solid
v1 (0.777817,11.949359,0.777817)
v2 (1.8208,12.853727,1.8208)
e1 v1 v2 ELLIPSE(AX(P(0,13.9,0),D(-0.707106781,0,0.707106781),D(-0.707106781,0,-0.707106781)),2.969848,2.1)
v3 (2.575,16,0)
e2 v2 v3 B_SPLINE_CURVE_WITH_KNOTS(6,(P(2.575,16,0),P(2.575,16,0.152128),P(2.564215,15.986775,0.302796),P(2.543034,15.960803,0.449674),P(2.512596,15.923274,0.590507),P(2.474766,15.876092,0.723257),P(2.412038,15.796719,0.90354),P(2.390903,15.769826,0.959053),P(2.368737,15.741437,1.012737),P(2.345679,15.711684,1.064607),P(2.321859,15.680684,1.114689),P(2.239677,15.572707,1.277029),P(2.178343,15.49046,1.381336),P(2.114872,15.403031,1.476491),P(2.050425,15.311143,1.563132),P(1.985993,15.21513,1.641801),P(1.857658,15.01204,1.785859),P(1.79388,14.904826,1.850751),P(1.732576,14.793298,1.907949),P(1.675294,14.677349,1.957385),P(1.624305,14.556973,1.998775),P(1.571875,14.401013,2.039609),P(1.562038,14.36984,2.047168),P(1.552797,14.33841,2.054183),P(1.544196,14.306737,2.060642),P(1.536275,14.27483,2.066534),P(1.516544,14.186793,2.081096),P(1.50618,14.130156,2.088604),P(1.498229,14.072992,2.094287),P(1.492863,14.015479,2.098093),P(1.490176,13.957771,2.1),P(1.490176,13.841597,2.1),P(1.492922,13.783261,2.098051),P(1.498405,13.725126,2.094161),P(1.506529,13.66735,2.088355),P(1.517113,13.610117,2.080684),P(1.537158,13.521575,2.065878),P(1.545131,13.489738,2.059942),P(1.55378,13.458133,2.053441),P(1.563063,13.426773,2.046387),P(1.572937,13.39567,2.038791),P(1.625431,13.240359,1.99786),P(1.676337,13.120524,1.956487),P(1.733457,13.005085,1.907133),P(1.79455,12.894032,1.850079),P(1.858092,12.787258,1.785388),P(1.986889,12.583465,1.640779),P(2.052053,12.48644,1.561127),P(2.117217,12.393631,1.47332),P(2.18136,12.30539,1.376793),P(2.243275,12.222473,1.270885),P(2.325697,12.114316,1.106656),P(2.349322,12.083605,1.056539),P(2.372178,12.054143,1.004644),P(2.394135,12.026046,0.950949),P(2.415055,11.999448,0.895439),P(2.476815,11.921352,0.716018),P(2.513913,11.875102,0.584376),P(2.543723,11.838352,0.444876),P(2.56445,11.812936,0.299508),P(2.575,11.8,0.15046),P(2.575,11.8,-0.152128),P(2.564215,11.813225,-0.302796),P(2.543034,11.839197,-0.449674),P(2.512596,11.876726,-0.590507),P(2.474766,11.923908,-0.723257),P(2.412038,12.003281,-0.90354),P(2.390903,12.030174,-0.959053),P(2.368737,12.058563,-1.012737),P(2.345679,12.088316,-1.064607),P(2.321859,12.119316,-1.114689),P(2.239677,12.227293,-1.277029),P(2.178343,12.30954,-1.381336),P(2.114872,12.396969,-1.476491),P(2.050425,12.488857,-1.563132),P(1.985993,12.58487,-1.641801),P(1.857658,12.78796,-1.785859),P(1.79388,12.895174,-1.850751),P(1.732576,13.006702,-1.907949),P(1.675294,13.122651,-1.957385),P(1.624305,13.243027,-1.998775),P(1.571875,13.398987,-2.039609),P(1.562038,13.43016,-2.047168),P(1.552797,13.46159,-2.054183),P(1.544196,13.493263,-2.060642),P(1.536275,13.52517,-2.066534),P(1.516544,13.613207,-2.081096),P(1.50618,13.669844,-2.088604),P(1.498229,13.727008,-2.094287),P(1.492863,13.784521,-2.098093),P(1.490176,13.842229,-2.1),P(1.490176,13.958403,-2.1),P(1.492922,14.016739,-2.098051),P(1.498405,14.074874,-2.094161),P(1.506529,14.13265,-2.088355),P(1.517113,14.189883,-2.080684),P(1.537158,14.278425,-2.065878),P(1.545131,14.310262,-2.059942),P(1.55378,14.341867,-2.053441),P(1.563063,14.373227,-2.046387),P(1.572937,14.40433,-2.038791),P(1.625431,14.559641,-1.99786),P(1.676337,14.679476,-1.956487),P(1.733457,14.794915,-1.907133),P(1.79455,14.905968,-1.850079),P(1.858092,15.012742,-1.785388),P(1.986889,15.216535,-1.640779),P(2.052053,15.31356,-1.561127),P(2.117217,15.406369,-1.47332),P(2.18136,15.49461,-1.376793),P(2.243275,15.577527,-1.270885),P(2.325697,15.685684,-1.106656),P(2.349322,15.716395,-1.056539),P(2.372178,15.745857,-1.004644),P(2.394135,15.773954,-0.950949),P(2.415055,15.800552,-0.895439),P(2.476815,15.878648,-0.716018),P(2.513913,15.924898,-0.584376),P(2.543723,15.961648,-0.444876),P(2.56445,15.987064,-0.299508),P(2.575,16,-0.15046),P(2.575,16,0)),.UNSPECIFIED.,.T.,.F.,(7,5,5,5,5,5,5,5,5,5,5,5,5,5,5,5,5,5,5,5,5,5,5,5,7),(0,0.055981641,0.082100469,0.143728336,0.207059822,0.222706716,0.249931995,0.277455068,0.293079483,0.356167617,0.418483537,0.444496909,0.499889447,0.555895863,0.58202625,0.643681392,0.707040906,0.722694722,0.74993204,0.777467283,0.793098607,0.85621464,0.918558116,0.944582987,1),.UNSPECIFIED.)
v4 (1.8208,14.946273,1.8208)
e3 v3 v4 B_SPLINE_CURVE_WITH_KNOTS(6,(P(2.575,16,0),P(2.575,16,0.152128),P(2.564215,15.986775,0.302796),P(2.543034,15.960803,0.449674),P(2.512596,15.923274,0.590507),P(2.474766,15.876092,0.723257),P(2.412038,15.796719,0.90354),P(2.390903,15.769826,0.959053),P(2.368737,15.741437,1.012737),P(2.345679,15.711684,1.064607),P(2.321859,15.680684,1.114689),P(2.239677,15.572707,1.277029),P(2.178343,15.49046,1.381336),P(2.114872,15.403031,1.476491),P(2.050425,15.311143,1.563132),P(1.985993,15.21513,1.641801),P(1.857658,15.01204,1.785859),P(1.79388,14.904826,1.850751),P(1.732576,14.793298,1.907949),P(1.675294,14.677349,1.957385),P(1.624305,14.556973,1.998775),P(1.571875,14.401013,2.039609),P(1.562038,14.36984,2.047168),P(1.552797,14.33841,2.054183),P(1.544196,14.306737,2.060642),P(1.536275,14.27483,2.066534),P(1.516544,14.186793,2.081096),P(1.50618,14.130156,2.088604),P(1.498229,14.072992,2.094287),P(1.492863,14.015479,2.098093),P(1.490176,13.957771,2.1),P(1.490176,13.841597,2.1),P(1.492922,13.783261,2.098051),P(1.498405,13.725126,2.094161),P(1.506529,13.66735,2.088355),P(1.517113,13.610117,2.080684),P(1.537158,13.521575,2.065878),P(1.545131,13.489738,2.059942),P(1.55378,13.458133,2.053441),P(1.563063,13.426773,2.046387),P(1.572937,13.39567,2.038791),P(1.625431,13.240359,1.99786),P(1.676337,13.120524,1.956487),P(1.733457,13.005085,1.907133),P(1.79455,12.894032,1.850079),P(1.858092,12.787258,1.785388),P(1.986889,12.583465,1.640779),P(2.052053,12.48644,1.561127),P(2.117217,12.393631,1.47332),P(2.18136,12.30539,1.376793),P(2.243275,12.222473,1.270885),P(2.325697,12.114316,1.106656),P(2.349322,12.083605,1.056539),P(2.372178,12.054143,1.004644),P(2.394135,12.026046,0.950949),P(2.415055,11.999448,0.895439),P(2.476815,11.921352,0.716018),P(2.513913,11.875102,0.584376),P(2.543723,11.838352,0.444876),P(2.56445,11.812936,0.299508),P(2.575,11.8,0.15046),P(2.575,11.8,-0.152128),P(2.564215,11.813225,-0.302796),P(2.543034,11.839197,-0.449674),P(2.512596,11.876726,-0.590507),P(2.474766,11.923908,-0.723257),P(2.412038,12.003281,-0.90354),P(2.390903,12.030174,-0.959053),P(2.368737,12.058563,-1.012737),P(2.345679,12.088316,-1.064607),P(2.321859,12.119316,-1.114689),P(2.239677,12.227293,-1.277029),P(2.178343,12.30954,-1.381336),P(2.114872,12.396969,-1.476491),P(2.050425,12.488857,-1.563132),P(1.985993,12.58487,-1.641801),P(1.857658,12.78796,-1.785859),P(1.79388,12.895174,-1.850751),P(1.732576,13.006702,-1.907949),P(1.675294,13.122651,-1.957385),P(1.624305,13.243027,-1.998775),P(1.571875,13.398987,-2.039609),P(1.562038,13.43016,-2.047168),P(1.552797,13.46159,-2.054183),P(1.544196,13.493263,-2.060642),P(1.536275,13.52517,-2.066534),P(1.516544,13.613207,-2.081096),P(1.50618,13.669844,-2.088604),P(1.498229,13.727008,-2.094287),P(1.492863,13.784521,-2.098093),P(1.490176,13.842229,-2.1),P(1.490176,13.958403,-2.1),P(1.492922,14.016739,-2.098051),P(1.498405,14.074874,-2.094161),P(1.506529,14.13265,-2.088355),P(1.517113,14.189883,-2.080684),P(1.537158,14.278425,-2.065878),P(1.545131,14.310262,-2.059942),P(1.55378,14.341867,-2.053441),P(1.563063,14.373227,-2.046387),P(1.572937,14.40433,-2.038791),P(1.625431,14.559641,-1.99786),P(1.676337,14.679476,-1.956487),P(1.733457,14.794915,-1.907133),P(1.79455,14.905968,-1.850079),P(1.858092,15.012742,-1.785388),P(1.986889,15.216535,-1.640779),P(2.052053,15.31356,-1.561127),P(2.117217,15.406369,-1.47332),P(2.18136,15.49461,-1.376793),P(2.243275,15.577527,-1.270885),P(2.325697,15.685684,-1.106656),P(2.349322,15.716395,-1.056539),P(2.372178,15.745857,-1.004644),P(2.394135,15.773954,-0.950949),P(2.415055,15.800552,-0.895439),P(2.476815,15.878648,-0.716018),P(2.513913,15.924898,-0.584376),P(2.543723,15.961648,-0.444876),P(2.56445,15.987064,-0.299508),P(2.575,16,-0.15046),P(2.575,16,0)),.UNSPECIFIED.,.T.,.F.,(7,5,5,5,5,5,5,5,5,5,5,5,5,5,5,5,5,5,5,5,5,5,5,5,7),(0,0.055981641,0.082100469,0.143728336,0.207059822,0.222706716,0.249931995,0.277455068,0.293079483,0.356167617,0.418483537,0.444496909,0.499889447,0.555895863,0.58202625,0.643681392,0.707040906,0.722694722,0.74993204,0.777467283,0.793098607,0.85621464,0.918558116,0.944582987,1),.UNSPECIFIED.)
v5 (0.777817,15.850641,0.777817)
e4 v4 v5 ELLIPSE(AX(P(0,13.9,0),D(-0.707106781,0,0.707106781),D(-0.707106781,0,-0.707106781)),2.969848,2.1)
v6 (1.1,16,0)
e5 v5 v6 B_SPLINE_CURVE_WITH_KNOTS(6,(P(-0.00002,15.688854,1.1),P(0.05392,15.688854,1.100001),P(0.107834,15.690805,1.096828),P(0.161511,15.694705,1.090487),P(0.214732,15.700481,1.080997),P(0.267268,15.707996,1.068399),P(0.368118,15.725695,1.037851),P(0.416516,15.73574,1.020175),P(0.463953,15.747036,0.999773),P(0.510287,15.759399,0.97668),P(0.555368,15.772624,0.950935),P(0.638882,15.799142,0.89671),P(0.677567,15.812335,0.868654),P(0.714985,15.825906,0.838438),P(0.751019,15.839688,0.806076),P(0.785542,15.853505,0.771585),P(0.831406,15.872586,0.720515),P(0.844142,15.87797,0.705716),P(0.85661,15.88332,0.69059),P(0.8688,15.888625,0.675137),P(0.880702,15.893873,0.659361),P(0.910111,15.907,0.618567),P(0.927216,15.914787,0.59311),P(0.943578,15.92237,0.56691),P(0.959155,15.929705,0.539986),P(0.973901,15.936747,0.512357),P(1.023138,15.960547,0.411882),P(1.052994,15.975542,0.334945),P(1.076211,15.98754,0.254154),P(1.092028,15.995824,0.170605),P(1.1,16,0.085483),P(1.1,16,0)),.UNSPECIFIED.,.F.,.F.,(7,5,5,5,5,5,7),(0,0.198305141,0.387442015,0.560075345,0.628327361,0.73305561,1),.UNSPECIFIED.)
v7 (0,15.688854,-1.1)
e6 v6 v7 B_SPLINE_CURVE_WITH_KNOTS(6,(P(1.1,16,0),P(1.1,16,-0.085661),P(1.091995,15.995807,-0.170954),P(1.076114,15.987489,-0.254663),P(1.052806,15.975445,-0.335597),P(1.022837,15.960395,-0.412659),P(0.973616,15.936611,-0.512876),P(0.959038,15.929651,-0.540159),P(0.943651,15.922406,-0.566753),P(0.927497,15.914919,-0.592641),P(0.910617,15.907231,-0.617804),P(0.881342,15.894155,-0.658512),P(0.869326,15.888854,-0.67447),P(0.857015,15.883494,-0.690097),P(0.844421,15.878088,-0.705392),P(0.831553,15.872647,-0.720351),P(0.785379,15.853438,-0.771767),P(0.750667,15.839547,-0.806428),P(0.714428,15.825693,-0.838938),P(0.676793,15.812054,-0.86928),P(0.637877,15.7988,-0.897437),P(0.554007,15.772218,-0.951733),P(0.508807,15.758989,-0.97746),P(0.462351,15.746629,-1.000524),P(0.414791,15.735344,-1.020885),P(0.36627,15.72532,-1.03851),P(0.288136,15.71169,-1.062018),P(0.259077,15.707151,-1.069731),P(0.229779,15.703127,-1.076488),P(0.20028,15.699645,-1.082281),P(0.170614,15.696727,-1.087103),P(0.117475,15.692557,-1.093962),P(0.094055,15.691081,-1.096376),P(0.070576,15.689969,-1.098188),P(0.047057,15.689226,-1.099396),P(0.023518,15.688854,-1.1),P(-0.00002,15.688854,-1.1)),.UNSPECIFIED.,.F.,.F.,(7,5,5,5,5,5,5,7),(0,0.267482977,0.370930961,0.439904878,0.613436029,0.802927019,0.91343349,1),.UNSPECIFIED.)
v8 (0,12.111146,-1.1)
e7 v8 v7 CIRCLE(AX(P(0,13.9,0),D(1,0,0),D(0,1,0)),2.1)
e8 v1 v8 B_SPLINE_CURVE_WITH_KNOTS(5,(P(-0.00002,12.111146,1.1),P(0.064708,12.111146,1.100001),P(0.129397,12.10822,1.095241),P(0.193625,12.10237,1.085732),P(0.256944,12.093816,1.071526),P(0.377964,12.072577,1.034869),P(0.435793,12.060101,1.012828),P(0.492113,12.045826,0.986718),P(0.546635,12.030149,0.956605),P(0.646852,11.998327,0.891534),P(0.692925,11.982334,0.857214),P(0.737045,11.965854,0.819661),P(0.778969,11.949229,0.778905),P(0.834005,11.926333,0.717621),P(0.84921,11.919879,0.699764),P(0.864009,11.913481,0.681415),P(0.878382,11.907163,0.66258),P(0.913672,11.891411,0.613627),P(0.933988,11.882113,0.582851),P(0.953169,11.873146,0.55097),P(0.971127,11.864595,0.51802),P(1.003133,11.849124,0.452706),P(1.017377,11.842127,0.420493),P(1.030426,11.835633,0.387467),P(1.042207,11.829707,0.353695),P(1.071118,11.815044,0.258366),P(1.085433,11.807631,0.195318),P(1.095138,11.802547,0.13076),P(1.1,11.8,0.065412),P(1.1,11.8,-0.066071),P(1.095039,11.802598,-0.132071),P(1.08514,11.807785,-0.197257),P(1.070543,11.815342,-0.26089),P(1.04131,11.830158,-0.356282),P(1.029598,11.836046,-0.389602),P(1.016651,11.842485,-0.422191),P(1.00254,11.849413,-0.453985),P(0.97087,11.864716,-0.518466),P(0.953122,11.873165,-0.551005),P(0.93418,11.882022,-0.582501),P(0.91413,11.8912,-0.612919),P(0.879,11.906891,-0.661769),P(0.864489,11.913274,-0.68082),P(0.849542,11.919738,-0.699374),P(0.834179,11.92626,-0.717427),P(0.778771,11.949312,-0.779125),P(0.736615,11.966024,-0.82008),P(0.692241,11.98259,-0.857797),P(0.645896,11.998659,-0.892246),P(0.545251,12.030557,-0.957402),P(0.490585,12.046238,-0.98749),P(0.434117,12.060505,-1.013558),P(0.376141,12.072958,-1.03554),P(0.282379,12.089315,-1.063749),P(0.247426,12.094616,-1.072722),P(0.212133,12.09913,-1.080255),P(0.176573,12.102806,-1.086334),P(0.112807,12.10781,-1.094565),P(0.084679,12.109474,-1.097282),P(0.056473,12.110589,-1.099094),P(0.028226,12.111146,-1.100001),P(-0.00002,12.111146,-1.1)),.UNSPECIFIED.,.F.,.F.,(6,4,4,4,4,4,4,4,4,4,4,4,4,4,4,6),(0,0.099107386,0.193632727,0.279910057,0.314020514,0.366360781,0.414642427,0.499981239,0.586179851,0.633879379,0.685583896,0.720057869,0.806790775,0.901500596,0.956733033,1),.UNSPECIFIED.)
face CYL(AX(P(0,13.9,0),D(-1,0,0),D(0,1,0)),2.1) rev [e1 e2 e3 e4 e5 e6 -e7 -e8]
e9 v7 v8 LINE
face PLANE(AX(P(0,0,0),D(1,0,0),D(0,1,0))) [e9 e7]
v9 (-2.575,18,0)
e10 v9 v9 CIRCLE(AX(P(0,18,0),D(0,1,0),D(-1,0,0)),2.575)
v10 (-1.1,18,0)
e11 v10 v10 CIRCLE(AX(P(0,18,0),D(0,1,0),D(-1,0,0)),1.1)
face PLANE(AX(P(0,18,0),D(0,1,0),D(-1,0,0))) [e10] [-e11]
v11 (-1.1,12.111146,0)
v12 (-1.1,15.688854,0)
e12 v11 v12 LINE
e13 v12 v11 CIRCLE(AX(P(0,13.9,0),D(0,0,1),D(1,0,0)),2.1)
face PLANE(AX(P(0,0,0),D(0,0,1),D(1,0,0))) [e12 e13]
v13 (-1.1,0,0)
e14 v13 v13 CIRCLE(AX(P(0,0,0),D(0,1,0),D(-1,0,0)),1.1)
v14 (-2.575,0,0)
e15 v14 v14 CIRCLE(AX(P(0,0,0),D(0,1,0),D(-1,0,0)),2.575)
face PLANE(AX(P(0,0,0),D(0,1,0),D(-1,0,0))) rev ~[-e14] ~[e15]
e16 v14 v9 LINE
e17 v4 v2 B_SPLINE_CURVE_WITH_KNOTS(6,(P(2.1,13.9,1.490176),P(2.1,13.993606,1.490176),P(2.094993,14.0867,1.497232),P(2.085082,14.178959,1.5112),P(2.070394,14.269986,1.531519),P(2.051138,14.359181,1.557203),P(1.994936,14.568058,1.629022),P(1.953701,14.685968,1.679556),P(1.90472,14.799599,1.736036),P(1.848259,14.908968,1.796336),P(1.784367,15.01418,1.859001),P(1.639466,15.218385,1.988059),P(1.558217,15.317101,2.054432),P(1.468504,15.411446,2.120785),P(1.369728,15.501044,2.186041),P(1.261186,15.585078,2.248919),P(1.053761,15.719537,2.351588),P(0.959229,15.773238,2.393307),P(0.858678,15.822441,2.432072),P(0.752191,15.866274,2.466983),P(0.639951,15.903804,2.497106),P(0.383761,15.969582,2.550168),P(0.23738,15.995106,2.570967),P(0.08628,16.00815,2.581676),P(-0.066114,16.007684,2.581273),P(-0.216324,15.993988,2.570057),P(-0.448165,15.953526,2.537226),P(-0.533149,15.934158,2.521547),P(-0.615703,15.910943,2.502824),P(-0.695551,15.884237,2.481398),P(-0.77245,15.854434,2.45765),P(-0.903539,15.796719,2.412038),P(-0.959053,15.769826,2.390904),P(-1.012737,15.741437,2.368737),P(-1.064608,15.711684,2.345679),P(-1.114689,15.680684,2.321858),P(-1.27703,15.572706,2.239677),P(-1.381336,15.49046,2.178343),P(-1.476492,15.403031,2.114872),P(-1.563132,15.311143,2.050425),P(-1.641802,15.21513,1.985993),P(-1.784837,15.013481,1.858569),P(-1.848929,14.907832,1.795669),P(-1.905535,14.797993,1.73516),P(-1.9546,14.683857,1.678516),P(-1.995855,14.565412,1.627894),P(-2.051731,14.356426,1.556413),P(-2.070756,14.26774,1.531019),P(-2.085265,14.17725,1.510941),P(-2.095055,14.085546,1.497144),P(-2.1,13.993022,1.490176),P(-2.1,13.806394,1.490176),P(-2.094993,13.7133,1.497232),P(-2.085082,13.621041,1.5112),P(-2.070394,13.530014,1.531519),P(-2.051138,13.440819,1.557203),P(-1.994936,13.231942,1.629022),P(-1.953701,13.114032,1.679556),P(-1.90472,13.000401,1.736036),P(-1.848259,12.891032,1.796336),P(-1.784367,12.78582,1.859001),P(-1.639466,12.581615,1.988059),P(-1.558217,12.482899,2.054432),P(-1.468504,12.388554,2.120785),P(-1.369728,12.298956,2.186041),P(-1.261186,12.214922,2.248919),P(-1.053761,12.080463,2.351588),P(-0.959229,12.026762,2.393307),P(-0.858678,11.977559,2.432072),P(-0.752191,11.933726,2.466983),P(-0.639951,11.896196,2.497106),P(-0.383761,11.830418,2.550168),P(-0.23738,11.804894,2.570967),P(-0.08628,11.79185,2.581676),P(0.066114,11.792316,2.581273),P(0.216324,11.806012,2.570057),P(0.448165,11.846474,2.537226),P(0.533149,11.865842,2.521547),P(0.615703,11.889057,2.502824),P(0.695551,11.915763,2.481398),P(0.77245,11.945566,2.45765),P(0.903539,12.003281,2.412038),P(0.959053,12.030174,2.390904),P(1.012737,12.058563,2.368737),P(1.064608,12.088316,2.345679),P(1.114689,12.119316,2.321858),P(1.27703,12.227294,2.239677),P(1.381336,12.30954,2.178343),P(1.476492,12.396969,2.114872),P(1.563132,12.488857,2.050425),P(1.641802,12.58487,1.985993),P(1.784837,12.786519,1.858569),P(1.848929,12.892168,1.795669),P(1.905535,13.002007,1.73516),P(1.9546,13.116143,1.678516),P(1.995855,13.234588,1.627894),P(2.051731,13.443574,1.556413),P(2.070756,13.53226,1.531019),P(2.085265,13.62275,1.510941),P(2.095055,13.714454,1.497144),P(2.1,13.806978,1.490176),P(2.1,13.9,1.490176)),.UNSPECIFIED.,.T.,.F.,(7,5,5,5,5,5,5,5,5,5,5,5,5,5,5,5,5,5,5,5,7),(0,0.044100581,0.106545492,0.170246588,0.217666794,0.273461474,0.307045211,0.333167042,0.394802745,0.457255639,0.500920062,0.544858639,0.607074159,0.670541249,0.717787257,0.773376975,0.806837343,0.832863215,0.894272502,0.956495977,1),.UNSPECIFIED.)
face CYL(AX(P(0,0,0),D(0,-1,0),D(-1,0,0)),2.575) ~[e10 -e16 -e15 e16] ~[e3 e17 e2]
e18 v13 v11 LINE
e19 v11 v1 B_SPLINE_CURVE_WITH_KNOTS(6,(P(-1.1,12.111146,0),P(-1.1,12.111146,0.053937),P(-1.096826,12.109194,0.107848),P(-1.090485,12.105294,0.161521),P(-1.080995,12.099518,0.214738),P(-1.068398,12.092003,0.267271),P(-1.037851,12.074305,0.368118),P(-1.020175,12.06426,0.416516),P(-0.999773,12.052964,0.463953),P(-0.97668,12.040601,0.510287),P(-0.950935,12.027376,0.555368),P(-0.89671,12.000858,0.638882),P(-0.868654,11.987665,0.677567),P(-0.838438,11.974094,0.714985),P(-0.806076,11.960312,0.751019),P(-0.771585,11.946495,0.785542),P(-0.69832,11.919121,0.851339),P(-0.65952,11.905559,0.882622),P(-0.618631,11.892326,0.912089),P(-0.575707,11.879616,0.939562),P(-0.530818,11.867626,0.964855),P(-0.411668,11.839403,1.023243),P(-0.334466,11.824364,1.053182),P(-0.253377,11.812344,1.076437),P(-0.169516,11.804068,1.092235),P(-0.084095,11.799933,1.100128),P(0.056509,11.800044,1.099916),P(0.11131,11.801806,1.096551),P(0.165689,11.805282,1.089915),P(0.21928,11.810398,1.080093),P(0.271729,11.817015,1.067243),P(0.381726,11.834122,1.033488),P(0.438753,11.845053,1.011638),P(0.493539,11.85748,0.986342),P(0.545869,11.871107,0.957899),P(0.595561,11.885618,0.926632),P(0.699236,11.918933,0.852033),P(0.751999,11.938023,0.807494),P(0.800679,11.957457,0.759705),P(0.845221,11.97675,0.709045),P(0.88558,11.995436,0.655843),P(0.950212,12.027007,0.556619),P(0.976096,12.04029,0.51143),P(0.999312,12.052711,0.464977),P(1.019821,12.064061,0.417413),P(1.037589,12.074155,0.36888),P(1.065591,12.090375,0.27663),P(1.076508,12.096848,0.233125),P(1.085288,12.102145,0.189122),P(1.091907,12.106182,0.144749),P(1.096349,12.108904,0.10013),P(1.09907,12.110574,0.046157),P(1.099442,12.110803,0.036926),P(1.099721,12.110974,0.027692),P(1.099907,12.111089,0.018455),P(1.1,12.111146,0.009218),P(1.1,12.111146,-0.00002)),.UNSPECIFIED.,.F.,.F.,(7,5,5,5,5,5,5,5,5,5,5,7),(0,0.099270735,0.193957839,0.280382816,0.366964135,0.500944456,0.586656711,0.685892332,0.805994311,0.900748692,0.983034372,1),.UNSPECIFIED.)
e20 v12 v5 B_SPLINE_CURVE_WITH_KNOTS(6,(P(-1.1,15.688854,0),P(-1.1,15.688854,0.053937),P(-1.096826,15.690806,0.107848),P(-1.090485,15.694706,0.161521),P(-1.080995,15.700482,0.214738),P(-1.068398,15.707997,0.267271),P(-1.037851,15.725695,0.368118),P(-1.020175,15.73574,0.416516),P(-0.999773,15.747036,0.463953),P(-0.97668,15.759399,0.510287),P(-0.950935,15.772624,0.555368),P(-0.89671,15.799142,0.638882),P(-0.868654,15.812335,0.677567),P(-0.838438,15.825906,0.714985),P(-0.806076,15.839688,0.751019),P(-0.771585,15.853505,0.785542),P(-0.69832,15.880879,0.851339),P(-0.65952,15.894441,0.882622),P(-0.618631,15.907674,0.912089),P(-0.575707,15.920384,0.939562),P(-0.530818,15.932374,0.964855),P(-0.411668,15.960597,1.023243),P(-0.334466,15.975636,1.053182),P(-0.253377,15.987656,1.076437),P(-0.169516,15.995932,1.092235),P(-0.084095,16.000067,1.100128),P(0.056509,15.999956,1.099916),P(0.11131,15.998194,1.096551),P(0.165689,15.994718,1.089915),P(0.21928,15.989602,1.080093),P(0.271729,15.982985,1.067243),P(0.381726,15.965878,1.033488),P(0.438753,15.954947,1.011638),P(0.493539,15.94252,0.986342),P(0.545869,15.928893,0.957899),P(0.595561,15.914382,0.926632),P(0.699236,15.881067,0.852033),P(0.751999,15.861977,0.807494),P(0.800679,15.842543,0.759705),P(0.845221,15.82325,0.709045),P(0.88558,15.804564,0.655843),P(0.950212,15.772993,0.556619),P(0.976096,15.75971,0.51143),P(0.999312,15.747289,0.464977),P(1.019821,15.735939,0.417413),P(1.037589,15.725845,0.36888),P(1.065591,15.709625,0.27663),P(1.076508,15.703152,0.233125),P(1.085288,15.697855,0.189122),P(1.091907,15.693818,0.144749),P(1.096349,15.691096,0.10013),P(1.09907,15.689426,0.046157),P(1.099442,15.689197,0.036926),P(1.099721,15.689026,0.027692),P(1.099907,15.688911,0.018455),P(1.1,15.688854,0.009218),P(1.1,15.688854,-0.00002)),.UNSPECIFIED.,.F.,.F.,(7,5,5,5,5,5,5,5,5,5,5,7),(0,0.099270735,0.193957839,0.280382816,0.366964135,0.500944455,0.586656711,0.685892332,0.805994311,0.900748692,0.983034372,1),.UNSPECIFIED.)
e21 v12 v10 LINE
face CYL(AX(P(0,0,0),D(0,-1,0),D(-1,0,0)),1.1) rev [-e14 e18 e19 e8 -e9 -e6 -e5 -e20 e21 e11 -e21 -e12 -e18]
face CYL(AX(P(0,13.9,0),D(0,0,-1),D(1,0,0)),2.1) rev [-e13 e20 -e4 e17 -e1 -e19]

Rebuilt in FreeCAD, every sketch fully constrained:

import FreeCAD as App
import Part
import Sketcher
from FreeCAD import Vector
Q = App.Units.Quantity

doc = App.newDocument("Part")
body = doc.addObject("PartDesign::Body", "Body")

# Sketch on XZ plane
sketch1 = body.newObject("Sketcher::SketchObject", "Sketch")
sketch1.AttachmentSupport = (doc.getObject("XZ_Plane"), [""])
sketch1.MapMode = "FlatFace"
sketch1.addGeometry([
    Part.Circle(Vector(0, 0, 0), Vector(0, 0, 1), 2.575),
    Part.Circle(Vector(0, 0, 0), Vector(0, 0, 1), 1.1),
], False)
sketch1.addConstraint([
    Sketcher.Constraint("Coincident", 0, 3, -1, 1),
    Sketcher.Constraint("Coincident", 1, 3, -1, 1),
    Sketcher.Constraint("Diameter", 1, Q("2.2 mm")),
    Sketcher.Constraint("Diameter", 0, Q("5.15 mm")),
])
pad1 = body.newObject("PartDesign::Pad", "Pad")
pad1.Profile = sketch1
pad1.Length = 18
pad1.Reversed = True

# Sketch on XY plane
sketch2 = body.newObject("Sketcher::SketchObject", "Sketch001")
sketch2.AttachmentSupport = (doc.getObject("XY_Plane"), [""])
sketch2.MapMode = "FlatFace"
sketch2.addGeometry(Part.Circle(Vector(0, 13.9, 0), Vector(0, 0, 1), 2.1), False)
sketch2.addConstraint([
    Sketcher.Constraint("PointOnObject", 0, 3, -2),
    Sketcher.Constraint("Diameter", 0, Q("4.2 mm")),
    Sketcher.Constraint("DistanceY", -1, 1, 0, 3, Q("13.9 mm")),
])
pocket1 = body.newObject("PartDesign::Pocket", "Pocket")
pocket1.Profile = sketch2
pocket1.Length = 12
pocket1.Reversed = True

# Sketch on YZ plane
sketch3 = body.newObject("Sketcher::SketchObject", "Sketch002")
sketch3.AttachmentSupport = (doc.getObject("YZ_Plane"), [""])
sketch3.MapMode = "FlatFace"
sketch3.addGeometry(Part.Circle(Vector(13.9, 0, 0), Vector(0, 0, 1), 2.1), False)
sketch3.addConstraint([
    Sketcher.Constraint("PointOnObject", 0, 3, -1),
    Sketcher.Constraint("Diameter", 0, Q("4.2 mm")),
    Sketcher.Constraint("DistanceX", -1, 1, 0, 3, Q("13.9 mm")),
])
pocket2 = body.newObject("PartDesign::Pocket", "Pocket001")
pocket2.Profile = sketch3
pocket2.Length = 2.575
pocket2.Reversed = True

doc.recompute()
